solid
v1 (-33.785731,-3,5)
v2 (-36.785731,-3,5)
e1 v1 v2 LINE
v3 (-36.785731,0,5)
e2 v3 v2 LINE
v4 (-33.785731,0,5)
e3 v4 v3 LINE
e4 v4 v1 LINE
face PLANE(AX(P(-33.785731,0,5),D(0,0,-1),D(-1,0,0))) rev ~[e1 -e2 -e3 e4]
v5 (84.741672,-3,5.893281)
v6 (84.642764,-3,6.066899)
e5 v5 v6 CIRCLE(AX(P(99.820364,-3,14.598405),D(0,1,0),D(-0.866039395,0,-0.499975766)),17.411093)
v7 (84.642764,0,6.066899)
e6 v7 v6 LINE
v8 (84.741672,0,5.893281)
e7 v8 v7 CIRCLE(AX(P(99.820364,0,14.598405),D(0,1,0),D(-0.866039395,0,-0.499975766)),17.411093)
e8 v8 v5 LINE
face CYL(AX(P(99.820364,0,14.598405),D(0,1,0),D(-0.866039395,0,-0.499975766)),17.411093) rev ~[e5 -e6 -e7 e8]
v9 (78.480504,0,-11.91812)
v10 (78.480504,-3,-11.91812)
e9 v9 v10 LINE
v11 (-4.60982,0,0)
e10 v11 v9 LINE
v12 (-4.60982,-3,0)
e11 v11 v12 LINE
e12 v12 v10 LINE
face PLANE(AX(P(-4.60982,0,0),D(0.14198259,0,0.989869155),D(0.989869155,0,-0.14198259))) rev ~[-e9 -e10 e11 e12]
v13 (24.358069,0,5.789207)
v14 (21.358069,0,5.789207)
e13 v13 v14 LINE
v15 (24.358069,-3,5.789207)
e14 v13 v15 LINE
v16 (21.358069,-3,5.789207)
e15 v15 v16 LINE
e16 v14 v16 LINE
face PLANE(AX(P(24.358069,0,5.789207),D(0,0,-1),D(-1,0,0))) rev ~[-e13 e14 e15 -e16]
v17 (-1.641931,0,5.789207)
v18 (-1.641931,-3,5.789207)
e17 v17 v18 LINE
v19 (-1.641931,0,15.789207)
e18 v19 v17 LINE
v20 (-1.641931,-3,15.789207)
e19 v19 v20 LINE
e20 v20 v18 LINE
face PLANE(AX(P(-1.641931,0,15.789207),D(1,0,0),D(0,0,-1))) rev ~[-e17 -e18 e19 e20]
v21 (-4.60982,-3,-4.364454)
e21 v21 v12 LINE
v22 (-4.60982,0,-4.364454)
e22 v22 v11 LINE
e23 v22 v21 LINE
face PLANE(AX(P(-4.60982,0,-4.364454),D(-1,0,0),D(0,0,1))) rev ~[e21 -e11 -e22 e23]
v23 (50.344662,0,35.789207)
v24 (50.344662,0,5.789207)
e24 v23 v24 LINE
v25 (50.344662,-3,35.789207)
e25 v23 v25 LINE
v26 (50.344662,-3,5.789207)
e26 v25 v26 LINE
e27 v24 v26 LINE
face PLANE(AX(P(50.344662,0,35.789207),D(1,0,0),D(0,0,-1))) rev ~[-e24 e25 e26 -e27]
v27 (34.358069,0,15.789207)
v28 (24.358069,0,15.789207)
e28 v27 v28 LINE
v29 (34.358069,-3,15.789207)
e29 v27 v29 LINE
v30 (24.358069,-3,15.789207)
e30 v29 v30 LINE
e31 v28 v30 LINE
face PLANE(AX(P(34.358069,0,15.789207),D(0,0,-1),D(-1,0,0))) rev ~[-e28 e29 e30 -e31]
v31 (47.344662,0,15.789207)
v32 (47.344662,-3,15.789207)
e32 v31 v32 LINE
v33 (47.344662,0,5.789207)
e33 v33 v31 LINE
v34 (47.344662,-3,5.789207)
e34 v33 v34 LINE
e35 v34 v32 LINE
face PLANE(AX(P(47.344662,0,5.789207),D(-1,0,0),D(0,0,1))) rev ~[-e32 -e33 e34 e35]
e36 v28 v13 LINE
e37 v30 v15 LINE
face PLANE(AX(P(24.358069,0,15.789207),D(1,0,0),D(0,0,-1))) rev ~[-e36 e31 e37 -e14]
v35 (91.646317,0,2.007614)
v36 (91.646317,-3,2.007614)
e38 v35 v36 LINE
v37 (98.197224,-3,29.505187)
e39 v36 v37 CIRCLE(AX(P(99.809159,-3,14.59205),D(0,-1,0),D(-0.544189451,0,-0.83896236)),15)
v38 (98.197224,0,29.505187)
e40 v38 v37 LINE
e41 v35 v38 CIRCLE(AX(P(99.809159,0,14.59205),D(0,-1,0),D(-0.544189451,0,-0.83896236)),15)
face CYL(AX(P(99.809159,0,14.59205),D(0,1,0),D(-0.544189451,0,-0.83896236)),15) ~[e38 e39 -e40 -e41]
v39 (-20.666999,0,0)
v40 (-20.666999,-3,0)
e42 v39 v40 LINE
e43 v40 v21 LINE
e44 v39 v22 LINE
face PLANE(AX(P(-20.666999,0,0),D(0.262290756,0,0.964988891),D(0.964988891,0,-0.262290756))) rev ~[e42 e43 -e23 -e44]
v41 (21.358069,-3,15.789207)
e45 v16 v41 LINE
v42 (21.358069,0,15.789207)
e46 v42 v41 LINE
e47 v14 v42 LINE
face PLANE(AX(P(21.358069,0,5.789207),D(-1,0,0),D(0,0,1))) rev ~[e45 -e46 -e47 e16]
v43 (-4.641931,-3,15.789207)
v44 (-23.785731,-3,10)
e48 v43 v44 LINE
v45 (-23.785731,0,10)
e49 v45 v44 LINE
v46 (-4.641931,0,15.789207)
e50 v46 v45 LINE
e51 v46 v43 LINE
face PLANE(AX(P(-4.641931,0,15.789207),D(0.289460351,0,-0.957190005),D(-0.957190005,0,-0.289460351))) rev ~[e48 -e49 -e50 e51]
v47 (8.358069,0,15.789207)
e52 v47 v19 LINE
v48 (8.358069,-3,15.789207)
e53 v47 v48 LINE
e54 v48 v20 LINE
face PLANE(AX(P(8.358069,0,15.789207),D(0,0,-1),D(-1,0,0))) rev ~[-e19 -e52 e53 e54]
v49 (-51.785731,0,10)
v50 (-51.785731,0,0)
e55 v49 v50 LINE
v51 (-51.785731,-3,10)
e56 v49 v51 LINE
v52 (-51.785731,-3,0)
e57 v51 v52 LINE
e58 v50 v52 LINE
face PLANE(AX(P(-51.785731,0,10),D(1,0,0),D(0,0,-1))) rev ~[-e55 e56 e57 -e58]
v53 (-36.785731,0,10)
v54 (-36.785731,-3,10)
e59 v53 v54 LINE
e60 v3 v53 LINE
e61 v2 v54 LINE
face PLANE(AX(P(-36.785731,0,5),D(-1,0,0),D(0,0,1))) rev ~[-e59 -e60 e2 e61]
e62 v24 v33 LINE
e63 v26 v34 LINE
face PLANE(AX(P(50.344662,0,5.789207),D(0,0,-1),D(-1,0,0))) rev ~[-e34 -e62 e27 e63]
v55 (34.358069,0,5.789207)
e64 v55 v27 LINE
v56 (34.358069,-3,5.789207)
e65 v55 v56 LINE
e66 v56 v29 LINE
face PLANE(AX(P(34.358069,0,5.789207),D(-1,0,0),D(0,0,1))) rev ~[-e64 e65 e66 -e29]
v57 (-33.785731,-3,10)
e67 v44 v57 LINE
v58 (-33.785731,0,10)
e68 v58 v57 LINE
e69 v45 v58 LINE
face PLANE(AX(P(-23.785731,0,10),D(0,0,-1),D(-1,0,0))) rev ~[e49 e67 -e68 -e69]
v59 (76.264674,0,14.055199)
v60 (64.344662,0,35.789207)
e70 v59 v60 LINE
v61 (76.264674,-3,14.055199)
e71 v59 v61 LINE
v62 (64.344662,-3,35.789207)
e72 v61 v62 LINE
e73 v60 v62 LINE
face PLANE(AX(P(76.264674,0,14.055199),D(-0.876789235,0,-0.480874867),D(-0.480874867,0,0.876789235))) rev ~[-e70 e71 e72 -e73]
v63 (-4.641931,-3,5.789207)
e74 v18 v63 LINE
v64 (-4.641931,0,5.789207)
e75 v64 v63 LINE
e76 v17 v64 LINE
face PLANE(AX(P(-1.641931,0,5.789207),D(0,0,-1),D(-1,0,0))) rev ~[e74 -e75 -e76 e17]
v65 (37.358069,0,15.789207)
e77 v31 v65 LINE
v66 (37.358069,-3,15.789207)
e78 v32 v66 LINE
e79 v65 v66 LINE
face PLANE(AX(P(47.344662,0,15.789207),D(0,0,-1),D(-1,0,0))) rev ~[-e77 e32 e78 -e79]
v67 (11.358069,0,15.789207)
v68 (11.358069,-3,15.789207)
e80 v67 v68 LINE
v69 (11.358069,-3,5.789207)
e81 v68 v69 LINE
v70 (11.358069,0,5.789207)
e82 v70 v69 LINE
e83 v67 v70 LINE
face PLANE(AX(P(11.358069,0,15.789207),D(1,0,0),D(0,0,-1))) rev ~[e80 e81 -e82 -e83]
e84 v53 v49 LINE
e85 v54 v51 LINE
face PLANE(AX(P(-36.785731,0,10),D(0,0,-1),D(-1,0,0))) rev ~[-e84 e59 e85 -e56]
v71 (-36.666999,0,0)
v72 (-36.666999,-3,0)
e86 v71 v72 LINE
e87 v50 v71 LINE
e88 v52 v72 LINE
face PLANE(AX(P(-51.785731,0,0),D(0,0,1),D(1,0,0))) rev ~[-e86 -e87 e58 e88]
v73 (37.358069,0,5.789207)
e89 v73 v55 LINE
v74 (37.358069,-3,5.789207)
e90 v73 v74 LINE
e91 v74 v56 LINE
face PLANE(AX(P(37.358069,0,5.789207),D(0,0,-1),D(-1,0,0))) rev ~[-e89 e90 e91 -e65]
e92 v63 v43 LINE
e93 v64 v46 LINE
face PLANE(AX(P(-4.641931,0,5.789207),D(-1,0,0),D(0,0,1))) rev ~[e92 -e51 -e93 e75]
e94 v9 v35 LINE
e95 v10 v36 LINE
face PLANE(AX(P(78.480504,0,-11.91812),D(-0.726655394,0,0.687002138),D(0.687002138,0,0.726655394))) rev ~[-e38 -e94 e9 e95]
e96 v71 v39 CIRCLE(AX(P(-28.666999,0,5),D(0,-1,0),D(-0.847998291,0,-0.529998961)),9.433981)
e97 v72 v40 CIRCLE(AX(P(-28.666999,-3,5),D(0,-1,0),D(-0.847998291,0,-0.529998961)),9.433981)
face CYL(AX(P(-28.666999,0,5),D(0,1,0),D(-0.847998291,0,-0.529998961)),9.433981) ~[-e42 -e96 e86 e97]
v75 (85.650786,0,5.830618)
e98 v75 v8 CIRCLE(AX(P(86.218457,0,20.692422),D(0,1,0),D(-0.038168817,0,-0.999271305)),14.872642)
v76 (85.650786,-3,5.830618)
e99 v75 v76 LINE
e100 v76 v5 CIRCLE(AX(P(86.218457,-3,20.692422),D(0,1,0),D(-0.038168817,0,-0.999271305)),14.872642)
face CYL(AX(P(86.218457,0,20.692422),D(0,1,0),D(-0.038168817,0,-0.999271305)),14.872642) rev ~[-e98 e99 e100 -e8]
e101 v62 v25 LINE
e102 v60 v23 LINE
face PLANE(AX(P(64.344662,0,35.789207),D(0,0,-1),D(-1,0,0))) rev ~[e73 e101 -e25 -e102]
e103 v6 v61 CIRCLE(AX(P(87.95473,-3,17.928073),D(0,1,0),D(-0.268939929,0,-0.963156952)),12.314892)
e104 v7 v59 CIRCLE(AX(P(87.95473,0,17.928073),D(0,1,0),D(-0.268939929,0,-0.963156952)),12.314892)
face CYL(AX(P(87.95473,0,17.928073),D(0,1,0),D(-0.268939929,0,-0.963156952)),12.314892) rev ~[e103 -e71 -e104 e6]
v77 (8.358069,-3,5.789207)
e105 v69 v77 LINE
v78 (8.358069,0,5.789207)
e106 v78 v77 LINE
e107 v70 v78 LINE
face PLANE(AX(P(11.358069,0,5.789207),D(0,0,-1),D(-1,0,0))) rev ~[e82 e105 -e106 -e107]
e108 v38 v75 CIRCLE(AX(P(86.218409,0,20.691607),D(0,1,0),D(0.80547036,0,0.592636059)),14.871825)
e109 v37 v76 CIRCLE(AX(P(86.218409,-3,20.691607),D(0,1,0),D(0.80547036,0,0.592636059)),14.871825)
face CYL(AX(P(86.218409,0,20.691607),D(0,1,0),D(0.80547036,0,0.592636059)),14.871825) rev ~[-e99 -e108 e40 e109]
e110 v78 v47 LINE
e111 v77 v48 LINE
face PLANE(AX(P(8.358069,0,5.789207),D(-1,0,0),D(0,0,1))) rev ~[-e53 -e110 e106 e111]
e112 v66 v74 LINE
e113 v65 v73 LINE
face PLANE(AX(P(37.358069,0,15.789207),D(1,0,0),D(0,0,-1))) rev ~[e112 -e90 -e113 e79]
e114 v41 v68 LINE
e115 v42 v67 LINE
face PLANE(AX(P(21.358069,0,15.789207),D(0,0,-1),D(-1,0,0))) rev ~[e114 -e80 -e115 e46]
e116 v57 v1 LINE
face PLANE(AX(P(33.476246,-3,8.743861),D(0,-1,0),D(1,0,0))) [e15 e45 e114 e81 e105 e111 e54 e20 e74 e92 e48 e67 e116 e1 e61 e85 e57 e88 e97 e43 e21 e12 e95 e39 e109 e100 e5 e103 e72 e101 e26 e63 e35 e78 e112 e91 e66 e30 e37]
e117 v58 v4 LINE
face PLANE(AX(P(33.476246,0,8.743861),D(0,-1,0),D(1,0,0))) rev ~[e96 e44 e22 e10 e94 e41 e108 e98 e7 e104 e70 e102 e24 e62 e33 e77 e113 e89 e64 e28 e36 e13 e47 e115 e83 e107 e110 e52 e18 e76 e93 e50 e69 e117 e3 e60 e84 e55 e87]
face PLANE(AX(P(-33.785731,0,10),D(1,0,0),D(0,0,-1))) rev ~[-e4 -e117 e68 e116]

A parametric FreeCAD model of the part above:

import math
import FreeCAD as App
import Part
import Sketcher
Q = App.Units.Quantity

doc = App.newDocument("Part")
body = doc.addObject("PartDesign::Body", "Body")

# Sketch on XZ plane
sketch1 = body.newObject("Sketcher::SketchObject", "Sketch")
sketch1.AttachmentSupport = (doc.getObject("XZ_Plane"), [""])
sketch1.MapMode = "FlatFace"
sketch1.addGeometry([
    Part.LineSegment(App.Vector(-36.785731, 10, 0), App.Vector(-51.785731, 10, 0)),  # 0
    Part.LineSegment(App.Vector(-51.785731, 10, 0), App.Vector(-51.785731, 0, 0)),  # 1
    Part.LineSegment(App.Vector(-51.785731, 0, 0), App.Vector(-36.666999, 0, 0)),  # 2
    Part.ArcOfCircle(Part.Circle(App.Vector(-28.666999, 5, 0), App.Vector(0, 0, 1), 9.433981), math.radians(-147.994615), math.radians(-32.005385)),  # 3
    Part.LineSegment(App.Vector(-20.666999, 0, 0), App.Vector(-4.60982, -4.364454, 0)),  # 4
    Part.LineSegment(App.Vector(-4.60982, -4.364454, 0), App.Vector(-4.60982, 0, 0)),  # 5
    Part.LineSegment(App.Vector(-4.60982, 0, 0), App.Vector(78.480504, -11.91812, 0)),  # 6
    Part.LineSegment(App.Vector(78.480504, -11.91812, 0), App.Vector(91.646317, 2.007614, 0)),  # 7
    Part.ArcOfCircle(Part.Circle(App.Vector(99.809159, 14.59205, 0), App.Vector(0, 0, 1), 15), math.radians(-122.969291), math.radians(96.16905)),  # 8
    Part.ArcOfCircle(Part.Circle(App.Vector(86.218409, 20.691607, 0), App.Vector(0, 0, 1), 14.871825), math.radians(-92.18738), math.radians(36.344295)),  # 9
    Part.ArcOfCircle(Part.Circle(App.Vector(86.218457, 20.692422, 0), App.Vector(0, 0, 1), 14.872642), math.radians(-95.698599), math.radians(-92.187443)),  # 10
    Part.ArcOfCircle(Part.Circle(App.Vector(99.820364, 14.598405, 0), App.Vector(0, 0, 1), 17.411093), math.radians(-150.65915), math.radians(-150.001603)),  # 11
    Part.ArcOfCircle(Part.Circle(App.Vector(87.95473, 17.928073, 0), App.Vector(0, 0, 1), 12.314892), math.radians(-161.670151), math.radians(-105.601196)),  # 12
    Part.LineSegment(App.Vector(76.264674, 14.055199, 0), App.Vector(64.344662, 35.789207, 0)),  # 13
    Part.LineSegment(App.Vector(64.344662, 35.789207, 0), App.Vector(50.344662, 35.789207, 0)),  # 14
    Part.LineSegment(App.Vector(50.344662, 35.789207, 0), App.Vector(50.344662, 5.789207, 0)),  # 15
    Part.LineSegment(App.Vector(50.344662, 5.789207, 0), App.Vector(47.344662, 5.789207, 0)),  # 16
    Part.LineSegment(App.Vector(47.344662, 5.789207, 0), App.Vector(47.344662, 15.789207, 0)),  # 17
    Part.LineSegment(App.Vector(47.344662, 15.789207, 0), App.Vector(37.358069, 15.789207, 0)),  # 18
    Part.LineSegment(App.Vector(37.358069, 15.789207, 0), App.Vector(37.358069, 5.789207, 0)),  # 19
    Part.LineSegment(App.Vector(37.358069, 5.789207, 0), App.Vector(34.358069, 5.789207, 0)),  # 20
    Part.LineSegment(App.Vector(34.358069, 5.789207, 0), App.Vector(34.358069, 15.789207, 0)),  # 21
    Part.LineSegment(App.Vector(34.358069, 15.789207, 0), App.Vector(24.358069, 15.789207, 0)),  # 22
    Part.LineSegment(App.Vector(24.358069, 15.789207, 0), App.Vector(24.358069, 5.789207, 0)),  # 23
    Part.LineSegment(App.Vector(24.358069, 5.789207, 0), App.Vector(21.358069, 5.789207, 0)),  # 24
    Part.LineSegment(App.Vector(21.358069, 5.789207, 0), App.Vector(21.358069, 15.789207, 0)),  # 25
    Part.LineSegment(App.Vector(21.358069, 15.789207, 0), App.Vector(11.358069, 15.789207, 0)),  # 26
    Part.LineSegment(App.Vector(11.358069, 15.789207, 0), App.Vector(11.358069, 5.789207, 0)),  # 27
    Part.LineSegment(App.Vector(11.358069, 5.789207, 0), App.Vector(8.358069, 5.789207, 0)),  # 28
    Part.LineSegment(App.Vector(8.358069, 5.789207, 0), App.Vector(8.358069, 15.789207, 0)),  # 29
    Part.LineSegment(App.Vector(8.358069, 15.789207, 0), App.Vector(-1.641931, 15.789207, 0)),  # 30
    Part.LineSegment(App.Vector(-1.641931, 15.789207, 0), App.Vector(-1.641931, 5.789207, 0)),  # 31
    Part.LineSegment(App.Vector(-1.641931, 5.789207, 0), App.Vector(-4.641931, 5.789207, 0)),  # 32
    Part.LineSegment(App.Vector(-4.641931, 5.789207, 0), App.Vector(-4.641931, 15.789207, 0)),  # 33
    Part.LineSegment(App.Vector(-4.641931, 15.789207, 0), App.Vector(-23.785731, 10, 0)),  # 34
    Part.LineSegment(App.Vector(-23.785731, 10, 0), App.Vector(-33.785731, 10, 0)),  # 35
    Part.LineSegment(App.Vector(-33.785731, 10, 0), App.Vector(-33.785731, 5, 0)),  # 36
    Part.LineSegment(App.Vector(-33.785731, 5, 0), App.Vector(-36.785731, 5, 0)),  # 37
    Part.LineSegment(App.Vector(-36.785731, 5, 0), App.Vector(-36.785731, 10, 0)),  # 38
], False)
sketch1.addConstraint([
    Sketcher.Constraint("Coincident", 0, 2, 1, 1),
    Sketcher.Constraint("Coincident", 1, 2, 2, 1),
    Sketcher.Constraint("Coincident", 2, 2, 3, 1),
    Sketcher.Constraint("Coincident", 3, 2, 4, 1),
    Sketcher.Constraint("Coincident", 4, 2, 5, 1),
    Sketcher.Constraint("Coincident", 5, 2, 6, 1),
    Sketcher.Constraint("Coincident", 6, 2, 7, 1),
    Sketcher.Constraint("Coincident", 7, 2, 8, 1),
    Sketcher.Constraint("Coincident", 8, 2, 9, 2),
    Sketcher.Constraint("Coincident", 9, 1, 10, 2),
    Sketcher.Constraint("Coincident", 10, 1, 11, 2),
    Sketcher.Constraint("Coincident", 11, 1, 12, 2),
    Sketcher.Constraint("Coincident", 12, 1, 13, 1),
    Sketcher.Constraint("Coincident", 13, 2, 14, 1),
    Sketcher.Constraint("Coincident", 14, 2, 15, 1),
    Sketcher.Constraint("Coincident", 15, 2, 16, 1),
    Sketcher.Constraint("Coincident", 16, 2, 17, 1),
    Sketcher.Constraint("Coincident", 17, 2, 18, 1),
    Sketcher.Constraint("Coincident", 18, 2, 19, 1),
    Sketcher.Constraint("Coincident", 19, 2, 20, 1),
    Sketcher.Constraint("Coincident", 20, 2, 21, 1),
    Sketcher.Constraint("Coincident", 21, 2, 22, 1),
    Sketcher.Constraint("Coincident", 22, 2, 23, 1),
    Sketcher.Constraint("Coincident", 23, 2, 24, 1),
    Sketcher.Constraint("Coincident", 24, 2, 25, 1),
    Sketcher.Constraint("Coincident", 25, 2, 26, 1),
    Sketcher.Constraint("Coincident", 26, 2, 27, 1),
    Sketcher.Constraint("Coincident", 27, 2, 28, 1),
    Sketcher.Constraint("Coincident", 28, 2, 29, 1),
    Sketcher.Constraint("Coincident", 29, 2, 30, 1),
    Sketcher.Constraint("Coincident", 30, 2, 31, 1),
    Sketcher.Constraint("Coincident", 31, 2, 32, 1),
    Sketcher.Constraint("Coincident", 32, 2, 33, 1),
    Sketcher.Constraint("Coincident", 33, 2, 34, 1),
    Sketcher.Constraint("Coincident", 34, 2, 35, 1),
    Sketcher.Constraint("Coincident", 35, 2, 36, 1),
    Sketcher.Constraint("Coincident", 36, 2, 37, 1),
    Sketcher.Constraint("Coincident", 37, 2, 38, 1),
    Sketcher.Constraint("Coincident", 38, 2, 0, 1),
    Sketcher.Constraint("Horizontal", 0),
    Sketcher.Constraint("Vertical", 1),
    Sketcher.Constraint("Horizontal", 2),
    Sketcher.Constraint("Vertical", 5),
    Sketcher.Constraint("Horizontal", 14),
    Sketcher.Constraint("Vertical", 15),
    Sketcher.Constraint("Horizontal", 16),
    Sketcher.Constraint("Vertical", 17),
    Sketcher.Constraint("Horizontal", 18),
    Sketcher.Constraint("Vertical", 19),
    Sketcher.Constraint("Horizontal", 20),
    Sketcher.Constraint("Vertical", 21),
    Sketcher.Constraint("Horizontal", 22),
    Sketcher.Constraint("Vertical", 23),
    Sketcher.Constraint("Horizontal", 24),
    Sketcher.Constraint("Vertical", 25),
    Sketcher.Constraint("Horizontal", 26),
    Sketcher.Constraint("Vertical", 27),
    Sketcher.Constraint("Horizontal", 28),
    Sketcher.Constraint("Vertical", 29),
    Sketcher.Constraint("Horizontal", 30),
    Sketcher.Constraint("Vertical", 31),
    Sketcher.Constraint("Horizontal", 32),
    Sketcher.Constraint("Vertical", 33),
    Sketcher.Constraint("Horizontal", 35),
    Sketcher.Constraint("Vertical", 36),
    Sketcher.Constraint("Horizontal", 37),
    Sketcher.Constraint("Vertical", 38),
    Sketcher.Constraint("PointOnObject", 1, 2, -1),
    Sketcher.Constraint("PointOnObject", 3, 2, -1),
    Sketcher.Constraint("PointOnObject", 5, 2, -1),
    Sketcher.Constraint("Radius", 8, Q("15 mm")),
    Sketcher.Constraint("DistanceX", 0, 2, 0, 1, Q("15 mm")),
    Sketcher.Constraint("DistanceX", 14, 2, 14, 1, Q("14 mm")),
    Sketcher.Constraint("DistanceX", 16, 2, 16, 1, Q("3 mm")),
    Sketcher.Constraint("DistanceX", 20, 2, 20, 1, Q("3 mm")),
    Sketcher.Constraint("DistanceX", 22, 2, 22, 1, Q("10 mm")),
    Sketcher.Constraint("DistanceX", 24, 2, 24, 1, Q("3 mm")),
    Sketcher.Constraint("DistanceX", 26, 2, 26, 1, Q("10 mm")),
    Sketcher.Constraint("DistanceX", 28, 2, 28, 1, Q("3 mm")),
    Sketcher.Constraint("DistanceX", 30, 2, 30, 1, Q("10 mm")),
    Sketcher.Constraint("DistanceX", 32, 2, 32, 1, Q("3 mm")),
    Sketcher.Constraint("DistanceX", 35, 2, 35, 1, Q("10 mm")),
    Sketcher.Constraint("DistanceX", 37, 2, 37, 1, Q("3 mm")),
    Sketcher.Constraint("DistanceY", 1, 2, 1, 1, Q("10 mm")),
    Sketcher.Constraint("DistanceY", 15, 2, 15, 1, Q("30 mm")),
    Sketcher.Constraint("DistanceY", 17, 1, 17, 2, Q("10 mm")),
    Sketcher.Constraint("DistanceY", 19, 2, 19, 1, Q("10 mm")),
    Sketcher.Constraint("DistanceY", 21, 1, 21, 2, Q("10 mm")),
    Sketcher.Constraint("DistanceY", 23, 2, 23, 1, Q("10 mm")),
    Sketcher.Constraint("DistanceY", 25, 1, 25, 2, Q("10 mm")),
    Sketcher.Constraint("DistanceY", 27, 2, 27, 1, Q("10 mm")),
    Sketcher.Constraint("DistanceY", 29, 1, 29, 2, Q("10 mm")),
    Sketcher.Constraint("DistanceY", 31, 2, 31, 1, Q("10 mm")),
    Sketcher.Constraint("DistanceY", 33, 1, 33, 2, Q("10 mm")),
    Sketcher.Constraint("DistanceY", 36, 2, 36, 1, Q("5 mm")),
    Sketcher.Constraint("DistanceY", 38, 1, 38, 2, Q("5 mm")),
    Sketcher.Constraint("Distance", 34, Q("20 mm")),
    Sketcher.Constraint("DistanceY", -1, 1, 3, 3, Q("5 mm")),
    Sketcher.Constraint("DistanceX", 2, 2, 3, 3, Q("8 mm")),
    Sketcher.Constraint("Radius", 10, Q("14.872642 mm")),
    Sketcher.Constraint("DistanceX", 3, 3, -1, 1, Q("28.666999 mm")),
    Sketcher.Constraint("Radius", 9, Q("14.871825 mm")),
    Sketcher.Constraint("Radius", 11, Q("17.411093 mm")),
    Sketcher.Constraint("Radius", 12, Q("12.314892 mm")),
    Sketcher.Constraint("DistanceY", -1, 1, 11, 1, Q("6.066899 mm")),
    Sketcher.Constraint("DistanceY", -1, 1, 12, 1, Q("14.055199 mm")),
    Sketcher.Constraint("DistanceX", 10, 3, 8, 3, Q("13.590702 mm")),
    Sketcher.Constraint("DistanceY", 11, 3, 9, 3, Q("6.093202 mm")),
    Sketcher.Constraint("DistanceY", 9, 3, 13, 2, Q("15.0976 mm")),
    Sketcher.Constraint("DistanceX", 15, 2, 11, 1, Q("34.298102 mm")),
    Sketcher.Constraint("DistanceX", 34, 2, 32, 2, Q("19.1438 mm")),
    Sketcher.Constraint("Distance", 7, Q("19.164151 mm")),
    Sketcher.Constraint("Distance", 13, Q("24.788178 mm")),
    Sketcher.Constraint("DistanceX", 2, 1, 2, 2, Q("15.118732 mm")),
    Sketcher.Constraint("DistanceX", 18, 2, 18, 1, Q("9.986593 mm")),
    Sketcher.Constraint("DistanceY", 5, 1, 5, 2, Q("4.364454 mm")),
    Sketcher.Constraint("DistanceX", -1, 1, 8, 3, Q("99.809159 mm")),
    Sketcher.Constraint("DistanceY", -1, 1, 8, 3, Q("14.59205 mm")),
    Sketcher.Constraint("DistanceX", -1, 1, 9, 3, Q("86.218409 mm")),
    Sketcher.Constraint("DistanceX", 4, 2, -1, 1, Q("4.60982 mm")),
    Sketcher.Constraint("DistanceY", 6, 2, -1, 1, Q("11.91812 mm")),
    Sketcher.Constraint("DistanceY", -1, 1, 9, 1, Q("5.830618 mm")),
    Sketcher.Constraint("DistanceX", 6, 2, 11, 3, Q("21.33986 mm")),
])
pad1 = body.newObject("PartDesign::Pad", "Pad")
pad1.Profile = sketch1
pad1.Length = 3

doc.recompute()
